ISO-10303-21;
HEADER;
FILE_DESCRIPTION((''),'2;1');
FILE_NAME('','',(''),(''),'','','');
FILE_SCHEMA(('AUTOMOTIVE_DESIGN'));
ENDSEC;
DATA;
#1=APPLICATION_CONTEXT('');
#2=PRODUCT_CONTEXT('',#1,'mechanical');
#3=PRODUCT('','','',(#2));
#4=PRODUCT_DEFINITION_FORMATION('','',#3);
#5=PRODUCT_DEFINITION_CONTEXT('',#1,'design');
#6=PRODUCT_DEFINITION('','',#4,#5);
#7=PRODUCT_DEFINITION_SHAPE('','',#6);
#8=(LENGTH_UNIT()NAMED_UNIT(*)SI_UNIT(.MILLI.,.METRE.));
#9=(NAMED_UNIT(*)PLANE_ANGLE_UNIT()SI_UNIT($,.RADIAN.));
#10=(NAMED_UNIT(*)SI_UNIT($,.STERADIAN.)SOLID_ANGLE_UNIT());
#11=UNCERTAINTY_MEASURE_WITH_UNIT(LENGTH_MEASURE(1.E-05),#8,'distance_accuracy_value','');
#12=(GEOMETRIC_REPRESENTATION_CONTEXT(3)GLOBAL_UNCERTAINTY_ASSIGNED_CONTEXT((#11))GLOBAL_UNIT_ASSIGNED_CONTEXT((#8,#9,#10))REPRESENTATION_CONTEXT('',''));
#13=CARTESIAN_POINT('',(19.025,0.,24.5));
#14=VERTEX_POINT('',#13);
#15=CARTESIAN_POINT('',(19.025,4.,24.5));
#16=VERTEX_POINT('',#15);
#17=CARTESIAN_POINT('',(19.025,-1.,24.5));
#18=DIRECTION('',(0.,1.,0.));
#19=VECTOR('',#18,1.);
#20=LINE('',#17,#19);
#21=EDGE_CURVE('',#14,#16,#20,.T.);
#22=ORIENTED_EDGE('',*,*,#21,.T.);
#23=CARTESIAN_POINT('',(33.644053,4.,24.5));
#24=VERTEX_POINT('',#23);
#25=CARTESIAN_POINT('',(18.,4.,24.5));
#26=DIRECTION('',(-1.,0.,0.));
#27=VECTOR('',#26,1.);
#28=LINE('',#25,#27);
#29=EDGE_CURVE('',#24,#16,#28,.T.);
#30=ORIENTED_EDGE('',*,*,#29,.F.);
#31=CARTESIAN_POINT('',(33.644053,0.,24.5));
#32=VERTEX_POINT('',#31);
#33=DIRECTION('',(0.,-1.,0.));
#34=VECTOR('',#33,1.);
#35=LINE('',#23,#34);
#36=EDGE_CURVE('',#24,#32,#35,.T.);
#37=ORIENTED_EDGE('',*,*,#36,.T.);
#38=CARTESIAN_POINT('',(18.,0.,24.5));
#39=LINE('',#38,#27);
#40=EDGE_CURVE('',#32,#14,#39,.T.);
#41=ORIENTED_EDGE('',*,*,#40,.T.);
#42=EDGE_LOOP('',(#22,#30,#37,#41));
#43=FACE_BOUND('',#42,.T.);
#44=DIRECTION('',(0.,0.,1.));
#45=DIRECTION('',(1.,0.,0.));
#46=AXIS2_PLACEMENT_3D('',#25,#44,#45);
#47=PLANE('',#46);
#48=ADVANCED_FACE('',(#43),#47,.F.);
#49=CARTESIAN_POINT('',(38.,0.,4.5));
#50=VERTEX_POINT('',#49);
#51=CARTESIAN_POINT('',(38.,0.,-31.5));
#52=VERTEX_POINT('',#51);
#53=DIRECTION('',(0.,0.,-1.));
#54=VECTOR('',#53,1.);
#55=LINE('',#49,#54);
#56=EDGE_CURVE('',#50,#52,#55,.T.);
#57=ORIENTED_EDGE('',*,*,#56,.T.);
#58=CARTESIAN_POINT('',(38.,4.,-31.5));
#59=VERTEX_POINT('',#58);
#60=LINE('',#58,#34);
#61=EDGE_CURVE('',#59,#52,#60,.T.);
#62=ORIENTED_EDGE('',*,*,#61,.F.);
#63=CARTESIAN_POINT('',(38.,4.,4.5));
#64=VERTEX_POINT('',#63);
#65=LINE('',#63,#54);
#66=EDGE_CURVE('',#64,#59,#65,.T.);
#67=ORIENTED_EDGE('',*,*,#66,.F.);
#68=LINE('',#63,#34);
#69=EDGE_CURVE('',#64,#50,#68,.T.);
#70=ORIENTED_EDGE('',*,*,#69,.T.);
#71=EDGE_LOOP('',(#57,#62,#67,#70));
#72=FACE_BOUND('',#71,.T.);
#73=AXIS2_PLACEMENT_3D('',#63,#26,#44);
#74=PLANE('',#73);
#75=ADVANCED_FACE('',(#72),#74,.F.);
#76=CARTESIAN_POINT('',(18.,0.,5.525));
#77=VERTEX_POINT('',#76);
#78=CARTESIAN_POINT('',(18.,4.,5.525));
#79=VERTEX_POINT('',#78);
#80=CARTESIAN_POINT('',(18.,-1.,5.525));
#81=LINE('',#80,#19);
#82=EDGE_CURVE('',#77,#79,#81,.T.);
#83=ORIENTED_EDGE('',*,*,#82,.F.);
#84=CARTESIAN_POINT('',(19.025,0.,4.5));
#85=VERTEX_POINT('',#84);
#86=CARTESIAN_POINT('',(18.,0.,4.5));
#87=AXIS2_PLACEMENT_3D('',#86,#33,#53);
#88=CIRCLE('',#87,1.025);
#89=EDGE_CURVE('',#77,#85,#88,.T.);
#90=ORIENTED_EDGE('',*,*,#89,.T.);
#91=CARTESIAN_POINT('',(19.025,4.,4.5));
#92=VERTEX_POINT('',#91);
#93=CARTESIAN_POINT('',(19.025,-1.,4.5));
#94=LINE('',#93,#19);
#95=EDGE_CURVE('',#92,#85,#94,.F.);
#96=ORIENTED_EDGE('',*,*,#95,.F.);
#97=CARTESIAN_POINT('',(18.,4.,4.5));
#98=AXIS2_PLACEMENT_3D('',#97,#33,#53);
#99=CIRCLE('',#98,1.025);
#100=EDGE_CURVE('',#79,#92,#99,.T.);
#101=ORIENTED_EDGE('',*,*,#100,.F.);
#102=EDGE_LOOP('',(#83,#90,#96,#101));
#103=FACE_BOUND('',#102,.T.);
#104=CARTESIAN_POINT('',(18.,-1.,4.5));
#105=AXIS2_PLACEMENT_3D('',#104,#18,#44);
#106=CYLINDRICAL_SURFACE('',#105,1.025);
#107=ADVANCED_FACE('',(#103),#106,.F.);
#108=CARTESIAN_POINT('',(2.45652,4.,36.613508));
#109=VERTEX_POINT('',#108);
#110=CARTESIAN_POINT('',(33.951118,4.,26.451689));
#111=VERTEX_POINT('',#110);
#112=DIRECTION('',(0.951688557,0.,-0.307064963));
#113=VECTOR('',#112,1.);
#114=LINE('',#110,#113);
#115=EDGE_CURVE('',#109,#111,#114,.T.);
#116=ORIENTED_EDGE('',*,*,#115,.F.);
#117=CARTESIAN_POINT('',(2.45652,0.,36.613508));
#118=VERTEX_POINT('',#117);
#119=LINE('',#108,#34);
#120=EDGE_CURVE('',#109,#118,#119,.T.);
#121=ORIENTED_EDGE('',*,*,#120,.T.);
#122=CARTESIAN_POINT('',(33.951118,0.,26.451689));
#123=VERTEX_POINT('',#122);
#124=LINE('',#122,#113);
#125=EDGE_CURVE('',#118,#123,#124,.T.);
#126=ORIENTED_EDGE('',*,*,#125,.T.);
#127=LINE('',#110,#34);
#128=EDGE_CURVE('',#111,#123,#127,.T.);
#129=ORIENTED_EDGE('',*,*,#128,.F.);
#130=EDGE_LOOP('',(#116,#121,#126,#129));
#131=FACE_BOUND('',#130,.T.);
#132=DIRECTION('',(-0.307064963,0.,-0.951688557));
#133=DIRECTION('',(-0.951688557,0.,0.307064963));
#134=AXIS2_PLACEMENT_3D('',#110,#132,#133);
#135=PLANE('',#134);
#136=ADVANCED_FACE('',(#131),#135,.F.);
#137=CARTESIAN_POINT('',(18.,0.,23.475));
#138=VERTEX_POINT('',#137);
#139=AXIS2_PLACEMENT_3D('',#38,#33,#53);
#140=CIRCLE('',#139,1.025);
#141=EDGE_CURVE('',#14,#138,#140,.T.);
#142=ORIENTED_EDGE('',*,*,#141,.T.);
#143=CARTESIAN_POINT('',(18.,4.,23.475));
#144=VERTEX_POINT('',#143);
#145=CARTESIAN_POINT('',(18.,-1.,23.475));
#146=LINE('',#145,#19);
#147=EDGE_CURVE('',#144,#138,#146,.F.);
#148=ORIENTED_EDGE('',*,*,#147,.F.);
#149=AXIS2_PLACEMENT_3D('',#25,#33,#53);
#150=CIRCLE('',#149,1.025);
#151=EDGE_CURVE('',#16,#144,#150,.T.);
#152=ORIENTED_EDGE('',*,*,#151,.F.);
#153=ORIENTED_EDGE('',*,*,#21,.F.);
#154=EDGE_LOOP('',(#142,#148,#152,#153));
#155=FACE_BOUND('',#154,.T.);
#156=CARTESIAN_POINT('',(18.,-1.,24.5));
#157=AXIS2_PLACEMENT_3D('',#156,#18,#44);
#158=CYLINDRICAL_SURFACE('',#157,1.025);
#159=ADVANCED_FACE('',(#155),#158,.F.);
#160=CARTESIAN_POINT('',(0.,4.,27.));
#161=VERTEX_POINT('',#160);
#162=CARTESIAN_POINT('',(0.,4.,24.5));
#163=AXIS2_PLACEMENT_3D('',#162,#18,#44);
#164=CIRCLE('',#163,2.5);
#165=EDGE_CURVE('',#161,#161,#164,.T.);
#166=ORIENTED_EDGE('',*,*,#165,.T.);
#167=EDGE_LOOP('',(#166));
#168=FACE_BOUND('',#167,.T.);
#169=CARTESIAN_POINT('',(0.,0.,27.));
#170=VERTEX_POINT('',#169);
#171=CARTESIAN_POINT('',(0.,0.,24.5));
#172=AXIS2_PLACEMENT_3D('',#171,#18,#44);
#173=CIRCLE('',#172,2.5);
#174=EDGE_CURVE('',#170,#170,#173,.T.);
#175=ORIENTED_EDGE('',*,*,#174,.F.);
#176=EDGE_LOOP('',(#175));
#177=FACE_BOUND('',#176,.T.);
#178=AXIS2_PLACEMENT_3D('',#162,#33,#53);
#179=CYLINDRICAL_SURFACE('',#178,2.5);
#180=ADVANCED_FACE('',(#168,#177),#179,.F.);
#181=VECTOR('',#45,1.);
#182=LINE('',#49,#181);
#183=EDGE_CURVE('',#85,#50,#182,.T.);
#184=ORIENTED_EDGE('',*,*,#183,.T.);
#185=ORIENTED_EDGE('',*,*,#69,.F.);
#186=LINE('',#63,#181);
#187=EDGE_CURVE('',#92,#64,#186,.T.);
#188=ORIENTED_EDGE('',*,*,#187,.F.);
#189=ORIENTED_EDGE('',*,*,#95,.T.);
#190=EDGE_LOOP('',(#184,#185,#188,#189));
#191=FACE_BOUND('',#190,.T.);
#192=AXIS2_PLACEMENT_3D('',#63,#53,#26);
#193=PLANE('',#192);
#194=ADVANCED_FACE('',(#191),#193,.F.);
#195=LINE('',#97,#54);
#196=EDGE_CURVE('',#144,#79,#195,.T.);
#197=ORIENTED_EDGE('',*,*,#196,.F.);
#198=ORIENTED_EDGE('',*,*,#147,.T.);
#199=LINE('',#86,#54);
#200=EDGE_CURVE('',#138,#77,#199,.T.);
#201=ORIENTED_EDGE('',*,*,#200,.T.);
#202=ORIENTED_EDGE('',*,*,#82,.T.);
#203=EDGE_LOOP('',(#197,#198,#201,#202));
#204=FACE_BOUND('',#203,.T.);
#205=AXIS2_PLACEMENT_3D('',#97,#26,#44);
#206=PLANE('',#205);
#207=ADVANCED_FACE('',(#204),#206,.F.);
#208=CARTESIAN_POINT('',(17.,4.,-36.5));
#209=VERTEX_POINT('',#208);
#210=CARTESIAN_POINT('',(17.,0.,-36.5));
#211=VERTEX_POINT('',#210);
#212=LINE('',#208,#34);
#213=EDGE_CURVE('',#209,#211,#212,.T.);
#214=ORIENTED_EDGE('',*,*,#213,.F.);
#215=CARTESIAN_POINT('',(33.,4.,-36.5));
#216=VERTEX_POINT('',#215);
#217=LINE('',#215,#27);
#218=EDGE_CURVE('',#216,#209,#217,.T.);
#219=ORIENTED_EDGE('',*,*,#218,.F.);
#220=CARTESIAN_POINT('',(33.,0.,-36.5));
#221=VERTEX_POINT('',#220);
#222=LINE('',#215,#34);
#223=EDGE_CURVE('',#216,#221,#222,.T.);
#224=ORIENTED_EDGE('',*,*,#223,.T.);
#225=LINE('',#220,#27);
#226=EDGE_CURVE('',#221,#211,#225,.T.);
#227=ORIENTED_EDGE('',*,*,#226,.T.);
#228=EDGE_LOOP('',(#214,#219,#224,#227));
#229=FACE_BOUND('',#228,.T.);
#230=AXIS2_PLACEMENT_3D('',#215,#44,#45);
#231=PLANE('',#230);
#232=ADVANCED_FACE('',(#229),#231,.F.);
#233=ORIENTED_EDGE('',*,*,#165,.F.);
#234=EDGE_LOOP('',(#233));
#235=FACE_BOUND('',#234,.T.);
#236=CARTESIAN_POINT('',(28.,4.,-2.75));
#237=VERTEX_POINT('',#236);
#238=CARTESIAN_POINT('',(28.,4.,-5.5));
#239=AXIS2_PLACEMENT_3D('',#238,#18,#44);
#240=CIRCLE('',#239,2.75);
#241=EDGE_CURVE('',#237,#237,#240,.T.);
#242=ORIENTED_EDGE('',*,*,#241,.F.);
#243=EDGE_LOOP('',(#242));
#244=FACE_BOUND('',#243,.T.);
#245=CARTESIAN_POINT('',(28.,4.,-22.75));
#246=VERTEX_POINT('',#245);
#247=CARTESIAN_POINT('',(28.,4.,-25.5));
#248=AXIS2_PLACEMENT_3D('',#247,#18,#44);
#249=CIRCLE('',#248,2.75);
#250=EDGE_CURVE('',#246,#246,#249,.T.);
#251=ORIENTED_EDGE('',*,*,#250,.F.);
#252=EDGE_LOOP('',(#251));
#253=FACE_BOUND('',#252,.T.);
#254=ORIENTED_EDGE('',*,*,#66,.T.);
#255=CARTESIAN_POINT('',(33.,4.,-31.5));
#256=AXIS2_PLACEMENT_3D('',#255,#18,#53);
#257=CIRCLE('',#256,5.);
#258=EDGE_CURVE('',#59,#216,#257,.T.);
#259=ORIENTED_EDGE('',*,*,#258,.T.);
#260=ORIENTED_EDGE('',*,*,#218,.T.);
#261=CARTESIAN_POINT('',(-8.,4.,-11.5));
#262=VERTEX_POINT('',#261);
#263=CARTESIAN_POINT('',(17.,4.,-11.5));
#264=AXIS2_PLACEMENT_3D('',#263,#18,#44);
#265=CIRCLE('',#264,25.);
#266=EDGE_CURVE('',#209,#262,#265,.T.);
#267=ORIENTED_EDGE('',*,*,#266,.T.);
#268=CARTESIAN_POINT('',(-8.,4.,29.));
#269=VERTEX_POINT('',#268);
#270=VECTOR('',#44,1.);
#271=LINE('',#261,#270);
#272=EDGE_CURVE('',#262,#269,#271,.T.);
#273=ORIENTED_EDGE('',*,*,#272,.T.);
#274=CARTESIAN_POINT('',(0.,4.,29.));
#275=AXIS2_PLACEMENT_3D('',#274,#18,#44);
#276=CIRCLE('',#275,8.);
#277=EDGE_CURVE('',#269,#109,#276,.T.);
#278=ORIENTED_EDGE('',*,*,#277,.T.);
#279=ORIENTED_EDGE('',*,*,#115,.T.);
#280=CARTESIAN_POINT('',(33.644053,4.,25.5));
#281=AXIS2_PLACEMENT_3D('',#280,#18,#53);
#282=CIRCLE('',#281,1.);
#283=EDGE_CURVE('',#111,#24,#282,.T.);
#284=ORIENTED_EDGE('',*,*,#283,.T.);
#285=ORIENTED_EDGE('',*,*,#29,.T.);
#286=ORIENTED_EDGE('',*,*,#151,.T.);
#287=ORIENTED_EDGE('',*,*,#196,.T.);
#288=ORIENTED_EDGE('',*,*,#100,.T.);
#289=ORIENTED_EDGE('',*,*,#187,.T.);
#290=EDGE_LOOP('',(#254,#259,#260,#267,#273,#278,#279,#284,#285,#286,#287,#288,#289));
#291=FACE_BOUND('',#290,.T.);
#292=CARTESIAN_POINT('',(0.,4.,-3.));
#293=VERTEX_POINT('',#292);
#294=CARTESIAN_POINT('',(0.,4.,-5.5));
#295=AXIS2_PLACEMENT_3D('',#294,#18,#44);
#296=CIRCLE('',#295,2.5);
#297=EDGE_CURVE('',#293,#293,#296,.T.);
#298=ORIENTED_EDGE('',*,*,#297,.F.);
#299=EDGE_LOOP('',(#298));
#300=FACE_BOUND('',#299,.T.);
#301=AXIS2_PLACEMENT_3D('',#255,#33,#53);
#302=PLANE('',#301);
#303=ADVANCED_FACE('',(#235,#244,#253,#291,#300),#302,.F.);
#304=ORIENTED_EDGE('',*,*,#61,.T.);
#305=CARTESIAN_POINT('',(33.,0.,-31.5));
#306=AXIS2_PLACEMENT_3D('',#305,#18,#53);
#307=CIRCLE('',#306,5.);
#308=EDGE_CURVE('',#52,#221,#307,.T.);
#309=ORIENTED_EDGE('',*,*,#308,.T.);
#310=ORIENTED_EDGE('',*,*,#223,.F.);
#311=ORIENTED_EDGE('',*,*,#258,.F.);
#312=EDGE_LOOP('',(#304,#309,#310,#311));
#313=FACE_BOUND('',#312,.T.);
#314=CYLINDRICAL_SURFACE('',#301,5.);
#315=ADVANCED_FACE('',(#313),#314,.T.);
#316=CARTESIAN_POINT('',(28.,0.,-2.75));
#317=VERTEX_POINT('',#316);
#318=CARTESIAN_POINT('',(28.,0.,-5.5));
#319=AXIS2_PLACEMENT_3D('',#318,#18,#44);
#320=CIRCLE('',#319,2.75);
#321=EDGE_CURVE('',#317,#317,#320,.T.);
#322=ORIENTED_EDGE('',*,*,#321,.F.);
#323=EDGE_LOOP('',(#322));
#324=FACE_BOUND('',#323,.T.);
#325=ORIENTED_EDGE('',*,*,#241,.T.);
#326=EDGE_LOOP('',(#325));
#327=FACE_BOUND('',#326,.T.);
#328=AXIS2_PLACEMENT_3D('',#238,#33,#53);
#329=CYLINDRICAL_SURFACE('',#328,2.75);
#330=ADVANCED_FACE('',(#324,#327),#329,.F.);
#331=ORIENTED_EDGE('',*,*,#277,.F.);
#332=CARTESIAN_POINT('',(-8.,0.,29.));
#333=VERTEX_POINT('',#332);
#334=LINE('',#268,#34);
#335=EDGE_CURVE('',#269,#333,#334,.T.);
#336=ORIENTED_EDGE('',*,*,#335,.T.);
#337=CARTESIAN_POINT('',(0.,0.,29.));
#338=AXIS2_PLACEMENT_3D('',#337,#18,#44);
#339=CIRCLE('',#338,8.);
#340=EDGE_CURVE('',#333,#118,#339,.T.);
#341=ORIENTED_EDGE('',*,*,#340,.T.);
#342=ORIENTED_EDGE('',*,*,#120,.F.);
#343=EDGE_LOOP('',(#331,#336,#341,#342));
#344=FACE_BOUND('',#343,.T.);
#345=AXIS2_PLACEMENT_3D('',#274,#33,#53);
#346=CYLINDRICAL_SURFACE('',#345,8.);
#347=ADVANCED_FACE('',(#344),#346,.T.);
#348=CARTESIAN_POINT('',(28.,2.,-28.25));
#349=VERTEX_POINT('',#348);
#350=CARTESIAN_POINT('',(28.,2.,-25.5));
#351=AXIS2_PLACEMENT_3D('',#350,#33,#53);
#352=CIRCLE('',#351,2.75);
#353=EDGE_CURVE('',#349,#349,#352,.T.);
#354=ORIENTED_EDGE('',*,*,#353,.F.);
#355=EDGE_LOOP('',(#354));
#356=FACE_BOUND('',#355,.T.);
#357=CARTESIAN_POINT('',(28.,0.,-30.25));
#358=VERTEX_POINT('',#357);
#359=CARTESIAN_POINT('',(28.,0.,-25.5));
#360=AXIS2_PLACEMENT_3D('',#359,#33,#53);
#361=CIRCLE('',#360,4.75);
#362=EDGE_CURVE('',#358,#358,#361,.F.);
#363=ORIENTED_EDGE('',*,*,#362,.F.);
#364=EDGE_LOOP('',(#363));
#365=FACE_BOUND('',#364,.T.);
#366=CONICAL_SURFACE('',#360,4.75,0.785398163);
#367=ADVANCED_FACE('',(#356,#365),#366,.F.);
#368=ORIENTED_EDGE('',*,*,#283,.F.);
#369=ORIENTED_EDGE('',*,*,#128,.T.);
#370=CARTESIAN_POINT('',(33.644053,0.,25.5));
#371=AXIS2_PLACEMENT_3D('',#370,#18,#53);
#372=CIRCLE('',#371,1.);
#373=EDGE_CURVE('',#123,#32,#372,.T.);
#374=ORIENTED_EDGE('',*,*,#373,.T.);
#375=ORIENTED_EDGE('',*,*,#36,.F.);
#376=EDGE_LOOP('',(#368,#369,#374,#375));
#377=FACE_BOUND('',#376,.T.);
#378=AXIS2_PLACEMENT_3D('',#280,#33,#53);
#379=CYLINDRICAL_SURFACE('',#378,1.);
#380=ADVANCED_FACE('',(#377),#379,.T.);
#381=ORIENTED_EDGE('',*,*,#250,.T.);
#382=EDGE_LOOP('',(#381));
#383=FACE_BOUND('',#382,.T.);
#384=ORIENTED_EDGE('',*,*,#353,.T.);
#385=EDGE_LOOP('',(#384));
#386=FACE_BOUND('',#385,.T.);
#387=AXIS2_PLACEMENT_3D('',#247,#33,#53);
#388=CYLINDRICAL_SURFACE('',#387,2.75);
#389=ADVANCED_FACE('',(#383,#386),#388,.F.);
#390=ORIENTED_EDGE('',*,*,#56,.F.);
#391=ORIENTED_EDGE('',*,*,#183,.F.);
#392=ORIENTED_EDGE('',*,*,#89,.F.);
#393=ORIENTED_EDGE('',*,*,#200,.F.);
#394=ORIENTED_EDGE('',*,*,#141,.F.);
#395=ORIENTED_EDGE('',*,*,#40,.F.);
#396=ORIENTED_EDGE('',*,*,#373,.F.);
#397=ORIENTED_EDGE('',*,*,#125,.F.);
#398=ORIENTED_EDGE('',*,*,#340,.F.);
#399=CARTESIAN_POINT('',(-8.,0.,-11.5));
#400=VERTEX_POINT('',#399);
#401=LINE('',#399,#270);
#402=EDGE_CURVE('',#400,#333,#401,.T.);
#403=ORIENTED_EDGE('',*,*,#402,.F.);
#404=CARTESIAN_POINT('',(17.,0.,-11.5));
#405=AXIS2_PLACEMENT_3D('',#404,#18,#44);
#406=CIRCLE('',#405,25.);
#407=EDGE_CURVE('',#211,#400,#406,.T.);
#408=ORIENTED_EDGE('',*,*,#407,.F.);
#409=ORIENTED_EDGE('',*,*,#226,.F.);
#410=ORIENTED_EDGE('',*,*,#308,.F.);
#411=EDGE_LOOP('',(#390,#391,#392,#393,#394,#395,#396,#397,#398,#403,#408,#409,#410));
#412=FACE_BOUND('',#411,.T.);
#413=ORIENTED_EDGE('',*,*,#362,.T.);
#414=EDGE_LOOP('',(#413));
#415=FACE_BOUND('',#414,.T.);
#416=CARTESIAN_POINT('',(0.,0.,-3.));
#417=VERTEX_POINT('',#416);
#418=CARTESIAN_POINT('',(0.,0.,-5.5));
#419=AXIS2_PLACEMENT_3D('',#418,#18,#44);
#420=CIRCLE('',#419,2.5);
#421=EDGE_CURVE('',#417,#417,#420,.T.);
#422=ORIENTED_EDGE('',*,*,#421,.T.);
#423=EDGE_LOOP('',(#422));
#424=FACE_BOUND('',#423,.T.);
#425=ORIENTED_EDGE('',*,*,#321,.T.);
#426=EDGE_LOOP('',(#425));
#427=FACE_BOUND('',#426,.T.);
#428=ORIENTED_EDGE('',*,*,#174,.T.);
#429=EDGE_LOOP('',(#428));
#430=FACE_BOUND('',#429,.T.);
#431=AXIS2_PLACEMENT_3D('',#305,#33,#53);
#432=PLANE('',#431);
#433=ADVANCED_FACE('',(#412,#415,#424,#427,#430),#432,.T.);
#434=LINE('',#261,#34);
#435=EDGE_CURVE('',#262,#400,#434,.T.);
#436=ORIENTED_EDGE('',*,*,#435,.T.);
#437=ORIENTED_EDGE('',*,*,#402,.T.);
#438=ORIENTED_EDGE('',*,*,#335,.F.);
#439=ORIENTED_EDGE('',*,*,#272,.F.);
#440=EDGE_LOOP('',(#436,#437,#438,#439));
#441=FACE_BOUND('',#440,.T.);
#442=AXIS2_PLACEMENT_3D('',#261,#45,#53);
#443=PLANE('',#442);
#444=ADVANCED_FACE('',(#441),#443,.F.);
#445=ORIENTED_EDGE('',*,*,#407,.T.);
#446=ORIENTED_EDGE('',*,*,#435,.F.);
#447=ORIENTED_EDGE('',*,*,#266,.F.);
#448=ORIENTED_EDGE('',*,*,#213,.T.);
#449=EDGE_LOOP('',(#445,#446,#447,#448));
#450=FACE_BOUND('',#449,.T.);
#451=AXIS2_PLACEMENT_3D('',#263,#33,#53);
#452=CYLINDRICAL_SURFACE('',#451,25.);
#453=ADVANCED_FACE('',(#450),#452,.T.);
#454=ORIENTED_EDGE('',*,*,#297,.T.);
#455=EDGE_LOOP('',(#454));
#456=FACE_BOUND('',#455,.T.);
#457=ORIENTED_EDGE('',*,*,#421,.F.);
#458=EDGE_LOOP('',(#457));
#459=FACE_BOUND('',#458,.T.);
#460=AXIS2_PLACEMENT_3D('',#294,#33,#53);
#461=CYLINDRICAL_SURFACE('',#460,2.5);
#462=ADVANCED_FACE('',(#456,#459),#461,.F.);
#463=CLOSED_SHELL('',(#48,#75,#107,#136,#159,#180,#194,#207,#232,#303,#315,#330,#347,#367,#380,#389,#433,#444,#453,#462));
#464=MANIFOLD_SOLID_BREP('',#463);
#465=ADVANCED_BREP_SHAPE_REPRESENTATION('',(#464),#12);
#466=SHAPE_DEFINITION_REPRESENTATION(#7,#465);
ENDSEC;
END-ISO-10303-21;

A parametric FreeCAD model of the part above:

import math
import FreeCAD as App
import Part
import Sketcher

V = App.Vector


def edges_at(feature, points):
    """Names of the edges that pass closest to the given points."""
    edges = feature.Shape.Edges
    near = lambda p: min(range(len(edges)), key=lambda i: edges[i].distToShape(Part.Vertex(*p))[0])
    return sorted({f"Edge{near(p) + 1}" for p in points})

doc = App.newDocument("Part")
body = doc.addObject("PartDesign::Body", "Body")

sketch1 = doc.addObject("Sketcher::SketchObject", "Sketch")
body.addObject(sketch1)
sketch1.AttachmentSupport = (doc.XZ_Plane, [""])
sketch1.MapMode = "FlatFace"
sketch1.addGeometry([
    Part.LineSegment(V(18, 4.5, 0), V(38, 4.5, 0)),
    Part.LineSegment(V(38, 4.5, 0), V(38, -31.5, 0)),
    Part.ArcOfCircle(Part.Circle(V(33, -31.5, 0), V(0, 0, 1), 5), math.radians(-90), math.radians(0)),
    Part.LineSegment(V(33, -36.5, 0), V(17, -36.5, 0)),
    Part.ArcOfCircle(Part.Circle(V(17, -11.5, 0), V(0, 0, 1), 25), math.radians(180), math.radians(270)),
    Part.LineSegment(V(-8, -11.5, 0), V(-8, 29, 0)),
    Part.ArcOfCircle(Part.Circle(V(0, 29, 0), V(0, 0, 1), 8), math.radians(72), math.radians(180)),
    Part.LineSegment(V(2.5, 36.6, 0), V(34, 26.5, 0)),
    Part.ArcOfCircle(Part.Circle(V(33.6, 25.5, 0), V(0, 0, 1), 1), math.radians(-90), math.radians(72)),
    Part.LineSegment(V(33.6, 24.5, 0), V(18, 24.5, 0)),
    Part.LineSegment(V(18, 24.5, 0), V(18, 4.5, 0)),
    Part.Circle(V(0, 24.5, 0), V(0, 0, 1), 2.5),
    Part.Circle(V(28, -5.5, 0), V(0, 0, 1), 2.8),
    Part.Circle(V(28, -25.5, 0), V(0, 0, 1), 2.8),
    Part.Circle(V(0, -5.5, 0), V(0, 0, 1), 2.5),
], False)
sketch1.addConstraint([
    Sketcher.Constraint("Coincident", 0, 2, 1, 1),
    Sketcher.Constraint("Tangent", 1, 2, 2, 2),
    Sketcher.Constraint("Tangent", 2, 1, 3, 1),
    Sketcher.Constraint("Tangent", 3, 2, 4, 2),
    Sketcher.Constraint("Tangent", 4, 1, 5, 1),
    Sketcher.Constraint("Tangent", 5, 2, 6, 2),
    Sketcher.Constraint("Tangent", 6, 1, 7, 1),
    Sketcher.Constraint("Tangent", 7, 2, 8, 2),
    Sketcher.Constraint("Tangent", 8, 1, 9, 1),
    Sketcher.Constraint("Coincident", 9, 2, 10, 1),
    Sketcher.Constraint("Coincident", 10, 2, 0, 1),
    Sketcher.Constraint("Horizontal", 0),
    Sketcher.Constraint("Vertical", 1),
    Sketcher.Constraint("Horizontal", 3),
    Sketcher.Constraint("Vertical", 5),
    Sketcher.Constraint("Horizontal", 9),
    Sketcher.Constraint("Vertical", 10),
    Sketcher.Constraint("Equal", 12, 13),
    Sketcher.Constraint("Equal", 11, 14),
    Sketcher.Constraint("PointOnObject", 6, 3, -2),
    Sketcher.Constraint("PointOnObject", 11, 3, -2),
    Sketcher.Constraint("PointOnObject", 14, 3, -2),
    Sketcher.Constraint("Horizontal", 12, 3, 14, 3),
    Sketcher.Constraint("Horizontal", 11, 3, 8, 1),
    Sketcher.Constraint("Vertical", 12, 3, 13, 3),
    Sketcher.Constraint("Equal", 0, 10),
    Sketcher.Constraint("Diameter", 11, 5.0),
    Sketcher.Constraint("Radius", 2, 5.0),
    Sketcher.Constraint("Radius", 4, 25.0),
    Sketcher.Constraint("Radius", 6, 8.0),
    Sketcher.Constraint("Radius", 8, 1.0),
    Sketcher.Constraint("Diameter", 12, 5.5),
    Sketcher.Constraint("DistanceX", 0, 1, 0, 2, 20.0),
    Sketcher.Constraint("DistanceX", 3, 2, 3, 1, 16.0),
    Sketcher.Constraint("DistanceY", 1, 2, 1, 1, 36.0),
    Sketcher.Constraint("DistanceY", 5, 1, 5, 2, 40.5),
    Sketcher.Constraint("DistanceY", -1, 1, 6, 3, 29.0),
    Sketcher.Constraint("DistanceX", -1, 1, 12, 3, 28.0),
    Sketcher.Constraint("DistanceY", 4, 3, 12, 3, 6.0),
    Sketcher.Constraint("DistanceY", 2, 3, 13, 3, 6.0),
    Sketcher.Constraint("DistanceX", 6, 1, 7, 2, 31.494598),
])
pad1 = doc.addObject("PartDesign::Pad", "Pad")
body.addObject(pad1)
pad1.Profile = sketch1
pad1.Length = 4
pad1.Reversed = True
doc.recompute()

chamfer = doc.addObject("PartDesign::Chamfer", "Chamfer")
body.addObject(chamfer)
chamfer.Base = (pad1, edges_at(pad1, [(25.25, 0, -25.5)]))
chamfer.Size = 2

sketch2 = doc.addObject("Sketcher::SketchObject", "Sketch001")
body.addObject(sketch2)
sketch2.AttachmentSupport = (doc.XZ_Plane, [""])
sketch2.MapMode = "FlatFace"
sketch2.AttachmentOffset = App.Placement(V(0, 0, -4), App.Rotation())
sketch2.addGeometry([
    Part.Circle(V(18, 4.5, 0), V(0, 0, 1), 1),
    Part.Circle(V(18, 24.5, 0), V(0, 0, 1), 1),
], False)
sketch2.addConstraint([
    Sketcher.Constraint("Equal", 0, 1),
    Sketcher.Constraint("Vertical", 0, 3, 1, 3),
    Sketcher.Constraint("Diameter", 0, 2.05),
    Sketcher.Constraint("DistanceX", -1, 1, 0, 3, 18.0),
    Sketcher.Constraint("DistanceY", 0, 3, 1, 3, 20.0),
    Sketcher.Constraint("DistanceY", -1, 1, 0, 3, 4.5),
])
pocket1 = doc.addObject("PartDesign::Pocket", "Pocket")
body.addObject(pocket1)
pocket1.Profile = sketch2
pocket1.Length = 10
pocket1.Midplane = True

doc.recompute()
